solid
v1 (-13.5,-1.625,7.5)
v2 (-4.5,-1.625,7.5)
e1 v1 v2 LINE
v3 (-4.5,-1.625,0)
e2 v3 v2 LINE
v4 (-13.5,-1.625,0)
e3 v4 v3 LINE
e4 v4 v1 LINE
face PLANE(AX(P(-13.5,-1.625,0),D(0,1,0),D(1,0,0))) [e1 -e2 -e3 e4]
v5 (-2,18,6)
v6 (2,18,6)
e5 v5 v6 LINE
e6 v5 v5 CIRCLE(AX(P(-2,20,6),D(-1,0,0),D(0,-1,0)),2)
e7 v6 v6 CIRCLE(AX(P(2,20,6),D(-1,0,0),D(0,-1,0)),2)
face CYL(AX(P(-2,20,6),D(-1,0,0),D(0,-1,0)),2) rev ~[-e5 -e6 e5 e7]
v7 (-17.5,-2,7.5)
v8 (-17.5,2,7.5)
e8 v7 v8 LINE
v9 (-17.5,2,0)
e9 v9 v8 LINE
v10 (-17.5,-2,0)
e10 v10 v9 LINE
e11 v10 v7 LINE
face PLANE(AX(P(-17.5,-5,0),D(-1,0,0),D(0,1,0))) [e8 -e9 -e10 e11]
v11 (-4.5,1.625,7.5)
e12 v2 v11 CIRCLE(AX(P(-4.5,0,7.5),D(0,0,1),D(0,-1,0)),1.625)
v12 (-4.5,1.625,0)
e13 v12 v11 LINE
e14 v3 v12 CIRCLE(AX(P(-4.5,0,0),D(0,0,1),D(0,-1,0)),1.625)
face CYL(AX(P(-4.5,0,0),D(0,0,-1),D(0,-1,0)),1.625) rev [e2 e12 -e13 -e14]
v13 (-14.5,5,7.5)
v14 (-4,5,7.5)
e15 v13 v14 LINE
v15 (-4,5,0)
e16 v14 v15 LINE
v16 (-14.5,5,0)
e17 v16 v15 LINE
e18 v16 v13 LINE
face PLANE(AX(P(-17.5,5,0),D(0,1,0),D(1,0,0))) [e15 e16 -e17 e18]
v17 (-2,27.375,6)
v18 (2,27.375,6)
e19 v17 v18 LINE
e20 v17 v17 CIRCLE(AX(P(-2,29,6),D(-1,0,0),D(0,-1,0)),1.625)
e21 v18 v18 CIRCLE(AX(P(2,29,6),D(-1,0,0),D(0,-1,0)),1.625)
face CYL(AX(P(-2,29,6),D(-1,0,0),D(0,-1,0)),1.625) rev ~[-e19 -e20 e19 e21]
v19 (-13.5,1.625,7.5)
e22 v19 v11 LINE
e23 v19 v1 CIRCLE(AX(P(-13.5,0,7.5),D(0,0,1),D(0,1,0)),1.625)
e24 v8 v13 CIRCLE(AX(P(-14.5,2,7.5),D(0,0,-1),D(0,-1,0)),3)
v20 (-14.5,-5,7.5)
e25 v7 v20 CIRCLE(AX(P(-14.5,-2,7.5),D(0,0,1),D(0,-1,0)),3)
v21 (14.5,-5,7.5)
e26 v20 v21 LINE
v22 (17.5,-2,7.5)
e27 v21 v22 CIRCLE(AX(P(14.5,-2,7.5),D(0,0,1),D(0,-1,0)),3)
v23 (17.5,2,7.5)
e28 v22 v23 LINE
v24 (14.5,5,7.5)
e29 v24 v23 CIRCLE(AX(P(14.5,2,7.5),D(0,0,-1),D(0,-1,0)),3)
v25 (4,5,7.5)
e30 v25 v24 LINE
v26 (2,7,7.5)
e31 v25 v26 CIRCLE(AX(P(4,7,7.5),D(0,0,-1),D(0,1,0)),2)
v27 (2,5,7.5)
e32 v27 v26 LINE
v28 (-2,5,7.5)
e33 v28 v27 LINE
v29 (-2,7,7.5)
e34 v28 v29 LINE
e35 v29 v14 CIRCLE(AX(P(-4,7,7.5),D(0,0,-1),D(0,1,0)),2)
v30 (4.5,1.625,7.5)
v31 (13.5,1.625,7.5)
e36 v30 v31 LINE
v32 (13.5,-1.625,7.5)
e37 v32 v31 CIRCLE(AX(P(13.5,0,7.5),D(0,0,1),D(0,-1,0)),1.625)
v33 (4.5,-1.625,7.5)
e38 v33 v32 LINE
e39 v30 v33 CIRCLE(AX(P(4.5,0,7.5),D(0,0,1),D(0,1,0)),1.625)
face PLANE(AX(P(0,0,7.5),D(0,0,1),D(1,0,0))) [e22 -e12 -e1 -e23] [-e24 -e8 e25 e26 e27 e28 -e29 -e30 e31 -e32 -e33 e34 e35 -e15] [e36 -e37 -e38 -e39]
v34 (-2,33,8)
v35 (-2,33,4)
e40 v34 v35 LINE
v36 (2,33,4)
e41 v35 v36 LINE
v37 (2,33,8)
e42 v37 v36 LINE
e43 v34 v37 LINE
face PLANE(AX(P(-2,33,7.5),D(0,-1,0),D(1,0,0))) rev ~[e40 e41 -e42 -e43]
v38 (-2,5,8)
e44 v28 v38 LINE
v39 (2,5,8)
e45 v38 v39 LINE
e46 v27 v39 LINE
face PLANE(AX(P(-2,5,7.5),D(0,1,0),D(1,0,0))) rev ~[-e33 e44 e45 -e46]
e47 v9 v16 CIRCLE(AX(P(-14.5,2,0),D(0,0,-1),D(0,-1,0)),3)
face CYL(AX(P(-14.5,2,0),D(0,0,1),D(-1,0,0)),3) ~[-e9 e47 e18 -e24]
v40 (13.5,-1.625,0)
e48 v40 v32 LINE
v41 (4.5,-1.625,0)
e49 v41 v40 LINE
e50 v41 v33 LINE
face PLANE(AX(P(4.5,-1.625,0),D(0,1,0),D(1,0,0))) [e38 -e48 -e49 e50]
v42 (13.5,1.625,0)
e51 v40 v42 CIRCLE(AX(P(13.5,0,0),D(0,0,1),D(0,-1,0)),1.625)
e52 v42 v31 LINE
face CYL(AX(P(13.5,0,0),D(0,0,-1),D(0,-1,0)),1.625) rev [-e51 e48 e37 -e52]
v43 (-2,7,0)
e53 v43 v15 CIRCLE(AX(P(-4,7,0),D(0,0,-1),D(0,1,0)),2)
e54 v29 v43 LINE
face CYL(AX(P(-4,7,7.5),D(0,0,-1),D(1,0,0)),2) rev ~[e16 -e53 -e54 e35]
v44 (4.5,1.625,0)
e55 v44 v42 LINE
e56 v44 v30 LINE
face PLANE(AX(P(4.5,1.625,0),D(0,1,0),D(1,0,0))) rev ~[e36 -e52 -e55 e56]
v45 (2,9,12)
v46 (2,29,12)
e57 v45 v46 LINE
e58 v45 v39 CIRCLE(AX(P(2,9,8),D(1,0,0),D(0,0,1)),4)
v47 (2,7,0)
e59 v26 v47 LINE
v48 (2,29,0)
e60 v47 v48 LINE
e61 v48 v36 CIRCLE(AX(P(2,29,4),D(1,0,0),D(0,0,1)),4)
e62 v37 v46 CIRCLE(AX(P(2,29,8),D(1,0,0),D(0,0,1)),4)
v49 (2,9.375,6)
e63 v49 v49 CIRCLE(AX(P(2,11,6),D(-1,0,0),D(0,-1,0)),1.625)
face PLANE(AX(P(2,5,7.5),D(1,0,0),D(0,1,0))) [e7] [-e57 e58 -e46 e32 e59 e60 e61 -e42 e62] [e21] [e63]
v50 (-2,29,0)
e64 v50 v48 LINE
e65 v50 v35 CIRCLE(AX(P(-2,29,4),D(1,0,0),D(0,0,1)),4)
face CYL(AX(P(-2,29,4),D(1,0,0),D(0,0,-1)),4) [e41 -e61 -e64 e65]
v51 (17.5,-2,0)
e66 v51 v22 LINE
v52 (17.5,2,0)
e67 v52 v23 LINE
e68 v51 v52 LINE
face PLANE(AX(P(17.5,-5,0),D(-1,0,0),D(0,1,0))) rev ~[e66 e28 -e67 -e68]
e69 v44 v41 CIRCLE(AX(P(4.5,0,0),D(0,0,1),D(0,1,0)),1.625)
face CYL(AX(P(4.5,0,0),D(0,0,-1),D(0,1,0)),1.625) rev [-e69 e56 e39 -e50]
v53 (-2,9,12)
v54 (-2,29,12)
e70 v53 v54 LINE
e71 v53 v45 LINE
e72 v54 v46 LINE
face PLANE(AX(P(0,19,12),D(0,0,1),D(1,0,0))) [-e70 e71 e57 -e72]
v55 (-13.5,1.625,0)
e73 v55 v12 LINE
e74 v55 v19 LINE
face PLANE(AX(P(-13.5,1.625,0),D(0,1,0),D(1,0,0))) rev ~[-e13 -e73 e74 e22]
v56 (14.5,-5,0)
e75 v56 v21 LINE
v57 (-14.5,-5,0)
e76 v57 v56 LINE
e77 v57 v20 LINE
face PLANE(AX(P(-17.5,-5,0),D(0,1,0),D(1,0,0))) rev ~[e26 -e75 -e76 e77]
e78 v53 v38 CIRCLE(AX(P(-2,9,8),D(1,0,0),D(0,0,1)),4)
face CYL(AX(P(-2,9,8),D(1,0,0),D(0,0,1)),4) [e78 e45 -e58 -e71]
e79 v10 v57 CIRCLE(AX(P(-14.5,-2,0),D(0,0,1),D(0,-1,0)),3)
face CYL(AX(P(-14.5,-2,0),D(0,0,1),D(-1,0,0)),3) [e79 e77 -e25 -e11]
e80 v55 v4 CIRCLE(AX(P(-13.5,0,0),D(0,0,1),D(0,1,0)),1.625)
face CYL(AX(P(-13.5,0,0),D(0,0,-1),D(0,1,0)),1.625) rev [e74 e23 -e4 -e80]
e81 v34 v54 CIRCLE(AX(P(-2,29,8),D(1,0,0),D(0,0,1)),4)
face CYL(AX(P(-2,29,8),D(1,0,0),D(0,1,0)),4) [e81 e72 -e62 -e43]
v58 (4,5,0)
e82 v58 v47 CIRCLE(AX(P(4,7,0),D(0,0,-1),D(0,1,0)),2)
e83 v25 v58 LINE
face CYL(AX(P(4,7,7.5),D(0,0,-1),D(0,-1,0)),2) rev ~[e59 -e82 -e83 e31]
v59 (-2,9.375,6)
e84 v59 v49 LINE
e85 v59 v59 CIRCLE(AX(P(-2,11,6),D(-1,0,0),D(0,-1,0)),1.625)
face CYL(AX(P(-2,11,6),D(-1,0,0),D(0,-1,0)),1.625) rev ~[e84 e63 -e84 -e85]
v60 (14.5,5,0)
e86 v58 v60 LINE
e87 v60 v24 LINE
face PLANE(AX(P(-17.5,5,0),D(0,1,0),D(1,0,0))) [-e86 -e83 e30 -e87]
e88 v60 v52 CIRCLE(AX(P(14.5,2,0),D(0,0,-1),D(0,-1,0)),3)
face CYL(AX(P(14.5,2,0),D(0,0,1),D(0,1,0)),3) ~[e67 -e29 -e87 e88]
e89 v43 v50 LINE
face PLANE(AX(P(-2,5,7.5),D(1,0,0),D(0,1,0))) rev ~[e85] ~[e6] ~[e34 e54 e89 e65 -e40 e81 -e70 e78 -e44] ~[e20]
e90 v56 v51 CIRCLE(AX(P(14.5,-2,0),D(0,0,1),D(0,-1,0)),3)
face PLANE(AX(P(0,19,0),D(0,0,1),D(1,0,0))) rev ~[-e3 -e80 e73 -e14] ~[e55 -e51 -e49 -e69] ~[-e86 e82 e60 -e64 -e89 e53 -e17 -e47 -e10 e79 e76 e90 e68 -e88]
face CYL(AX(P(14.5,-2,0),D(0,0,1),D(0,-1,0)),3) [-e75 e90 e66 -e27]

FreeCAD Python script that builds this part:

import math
import FreeCAD as App
import Part
import Sketcher

V = App.Vector


def edges_at(feature, points):
    """Names of the edges that pass closest to the given points."""
    edges = feature.Shape.Edges
    near = lambda p: min(range(len(edges)), key=lambda i: edges[i].distToShape(Part.Vertex(*p))[0])
    return sorted({f"Edge{near(p) + 1}" for p in points})


def add_polygon(sketch, points):
    """Adds a closed chain of lines whose ends are joined by coincident constraints."""
    first, n = sketch.GeometryCount, len(points)
    for a, b in zip(points, points[1:] + points[:1]):
        sketch.addGeometry(Part.LineSegment(App.Vector(*a, 0), App.Vector(*b, 0)), False)
    for i in range(n):
        sketch.addConstraint(Sketcher.Constraint("Coincident", first + i, 2, first + (i + 1) % n, 1))

doc = App.newDocument("Part")
body = doc.addObject("PartDesign::Body", "Body")

# Sketch on XY plane
sketch1 = body.newObject("Sketcher::SketchObject", "Sketch")
sketch1.AttachmentSupport = (doc.getObject("XY_Plane"), [""])
sketch1.MapMode = "FlatFace"
add_polygon(sketch1, [(-17.5, 5), (-17.5, -5), (17.5, -5), (17.5, 5)])  # lines 0-3
sketch1.addGeometry(Part.ArcOfCircle(Part.Circle(V(-13.5, 0, 0), V(0, 0, 1), 1.6), math.radians(90), math.radians(270)), False)  # 4
sketch1.addGeometry(Part.LineSegment(V(-13.5, 1.6, 0), V(-4.5, 1.6, 0)), False)  # 5
sketch1.addGeometry(Part.ArcOfCircle(Part.Circle(V(-4.5, 0, 0), V(0, 0, 1), 1.6), math.radians(-90), math.radians(90)), False)  # 6
sketch1.addGeometry(Part.LineSegment(V(-4.5, -1.6, 0), V(-13.5, -1.6, 0)), False)  # 7
sketch1.addGeometry(Part.ArcOfCircle(Part.Circle(V(4.5, 0, 0), V(0, 0, 1), 1.6), math.radians(90), math.radians(270)), False)  # 8
sketch1.addGeometry(Part.LineSegment(V(4.5, 1.6, 0), V(13.5, 1.6, 0)), False)  # 9
sketch1.addGeometry(Part.ArcOfCircle(Part.Circle(V(13.5, 0, 0), V(0, 0, 1), 1.6), math.radians(-90), math.radians(90)), False)  # 10
sketch1.addGeometry(Part.LineSegment(V(13.5, -1.6, 0), V(4.5, -1.6, 0)), False)  # 11
sketch1.addConstraint([
    Sketcher.Constraint("Tangent", 4, 1, 5, 1),
    Sketcher.Constraint("Tangent", 5, 2, 6, 2),
    Sketcher.Constraint("Tangent", 6, 1, 7, 1),
    Sketcher.Constraint("Tangent", 7, 2, 4, 2),
    Sketcher.Constraint("Tangent", 8, 1, 9, 1),
    Sketcher.Constraint("Tangent", 9, 2, 10, 2),
    Sketcher.Constraint("Tangent", 10, 1, 11, 1),
    Sketcher.Constraint("Tangent", 11, 2, 8, 2),
    Sketcher.Constraint("Vertical", 0),
    Sketcher.Constraint("Horizontal", 1),
    Sketcher.Constraint("Vertical", 2),
    Sketcher.Constraint("Horizontal", 3),
    Sketcher.Constraint("Horizontal", 5),
    Sketcher.Constraint("Horizontal", 7),
    Sketcher.Constraint("Horizontal", 9),
    Sketcher.Constraint("Horizontal", 11),
    Sketcher.Constraint("Equal", 6, 8),
    Sketcher.Constraint("Symmetric", 6, 3, 8, 3, -1, 1),
    Sketcher.Constraint("Symmetric", 0, 2, 2, 2, -1, 1),
    Sketcher.Constraint("Symmetric", 4, 3, 10, 3, -2),
    Sketcher.Constraint("DistanceX", 1, 1, 1, 2, 35.0),
    Sketcher.Constraint("DistanceX", 5, 1, 5, 2, 9.0),
    Sketcher.Constraint("DistanceY", 0, 2, 0, 1, 10.0),
    Sketcher.Constraint("Radius", 4, 1.625),
    Sketcher.Constraint("DistanceX", 6, 3, 8, 3, 9.0),
])
pad1 = body.newObject("PartDesign::Pad", "Pad")
pad1.Profile = sketch1
pad1.Length = 7.5
doc.recompute()

fillet = body.newObject("PartDesign::Fillet", "Fillet")
fillet.Base = (pad1, edges_at(pad1, [
    (-17.5, 5, 3.75),
    (-17.5, -5, 3.75),
    (17.5, -5, 3.75),
    (17.5, 5, 3.75),
]))
fillet.Radius = 3

# Sketch on XY plane
sketch2 = body.newObject("Sketcher::SketchObject", "Sketch001")
sketch2.AttachmentSupport = (doc.getObject("XY_Plane"), [""])
sketch2.MapMode = "FlatFace"
sketch2.AttachmentOffset = App.Placement(V(0, 0, 7.5), App.Rotation())
add_polygon(sketch2, [(-2, 33), (-2, 5), (2, 5), (2, 33)])  # lines 0-3
sketch2.addConstraint([
    Sketcher.Constraint("Vertical", 0),
    Sketcher.Constraint("Horizontal", 1),
    Sketcher.Constraint("Vertical", 2),
    Sketcher.Constraint("Horizontal", 3),
    Sketcher.Constraint("DistanceX", 1, 1, 1, 2, 4.0),
    Sketcher.Constraint("DistanceY", 0, 2, 0, 1, 28.0),
    Sketcher.Constraint("DistanceX", 0, 2, -1, 1, 2.0),
    Sketcher.Constraint("DistanceY", -1, 1, 0, 2, 5.0),
])
pad2 = body.newObject("PartDesign::Pad", "Pad001")
pad2.Profile = sketch2
pad2.Type = "TwoLengths"
pad2.Length = 4.5
pad2.Length2 = 7.5
doc.recompute()

fillet2 = body.newObject("PartDesign::Fillet", "Fillet001")
fillet2.Base = (pad2, edges_at(pad2, [(2, 5, 3.75), (-2, 5, 3.75)]))
fillet2.Radius = 2

# Sketch on YZ plane
sketch3 = body.newObject("Sketcher::SketchObject", "Sketch002")
sketch3.AttachmentSupport = (doc.getObject("YZ_Plane"), [""])
sketch3.MapMode = "FlatFace"
sketch3.AttachmentOffset = App.Placement(V(0, 0, -2), App.Rotation())
sketch3.addGeometry([
    Part.Circle(V(29, 6, 0), V(0, 0, 1), 1.6),
    Part.Circle(V(11, 6, 0), V(0, 0, 1), 1.6),
    Part.Circle(V(20, 6, 0), V(0, 0, 1), 2),
], False)
sketch3.addConstraint([
    Sketcher.Constraint("Equal", 0, 1),
    Sketcher.Constraint("Horizontal", 0, 3, 1, 3),
    Sketcher.Constraint("Horizontal", 1, 3, 2, 3),
    Sketcher.Constraint("Diameter", 2, 4.0),
    Sketcher.Constraint("Diameter", 0, 3.25),
    Sketcher.Constraint("DistanceX", -1, 1, 0, 3, 29.0),
    Sketcher.Constraint("DistanceY", -1, 1, 0, 3, 6.0),
    Sketcher.Constraint("DistanceX", -1, 1, 1, 3, 11.0),
    Sketcher.Constraint("DistanceX", -1, 1, 2, 3, 20.0),
])
pocket1 = body.newObject("PartDesign::Pocket", "Pocket")
pocket1.Profile = sketch3
pocket1.Type = "ThroughAll"
pocket1.Reversed = True
doc.recompute()

fillet3 = body.newObject("PartDesign::Fillet", "Fillet002")
fillet3.Base = (pocket1, edges_at(pocket1, [(0, 33, 0), (0, 33, 12), (0, 5, 12)]))
fillet3.Radius = 4

doc.recompute()
